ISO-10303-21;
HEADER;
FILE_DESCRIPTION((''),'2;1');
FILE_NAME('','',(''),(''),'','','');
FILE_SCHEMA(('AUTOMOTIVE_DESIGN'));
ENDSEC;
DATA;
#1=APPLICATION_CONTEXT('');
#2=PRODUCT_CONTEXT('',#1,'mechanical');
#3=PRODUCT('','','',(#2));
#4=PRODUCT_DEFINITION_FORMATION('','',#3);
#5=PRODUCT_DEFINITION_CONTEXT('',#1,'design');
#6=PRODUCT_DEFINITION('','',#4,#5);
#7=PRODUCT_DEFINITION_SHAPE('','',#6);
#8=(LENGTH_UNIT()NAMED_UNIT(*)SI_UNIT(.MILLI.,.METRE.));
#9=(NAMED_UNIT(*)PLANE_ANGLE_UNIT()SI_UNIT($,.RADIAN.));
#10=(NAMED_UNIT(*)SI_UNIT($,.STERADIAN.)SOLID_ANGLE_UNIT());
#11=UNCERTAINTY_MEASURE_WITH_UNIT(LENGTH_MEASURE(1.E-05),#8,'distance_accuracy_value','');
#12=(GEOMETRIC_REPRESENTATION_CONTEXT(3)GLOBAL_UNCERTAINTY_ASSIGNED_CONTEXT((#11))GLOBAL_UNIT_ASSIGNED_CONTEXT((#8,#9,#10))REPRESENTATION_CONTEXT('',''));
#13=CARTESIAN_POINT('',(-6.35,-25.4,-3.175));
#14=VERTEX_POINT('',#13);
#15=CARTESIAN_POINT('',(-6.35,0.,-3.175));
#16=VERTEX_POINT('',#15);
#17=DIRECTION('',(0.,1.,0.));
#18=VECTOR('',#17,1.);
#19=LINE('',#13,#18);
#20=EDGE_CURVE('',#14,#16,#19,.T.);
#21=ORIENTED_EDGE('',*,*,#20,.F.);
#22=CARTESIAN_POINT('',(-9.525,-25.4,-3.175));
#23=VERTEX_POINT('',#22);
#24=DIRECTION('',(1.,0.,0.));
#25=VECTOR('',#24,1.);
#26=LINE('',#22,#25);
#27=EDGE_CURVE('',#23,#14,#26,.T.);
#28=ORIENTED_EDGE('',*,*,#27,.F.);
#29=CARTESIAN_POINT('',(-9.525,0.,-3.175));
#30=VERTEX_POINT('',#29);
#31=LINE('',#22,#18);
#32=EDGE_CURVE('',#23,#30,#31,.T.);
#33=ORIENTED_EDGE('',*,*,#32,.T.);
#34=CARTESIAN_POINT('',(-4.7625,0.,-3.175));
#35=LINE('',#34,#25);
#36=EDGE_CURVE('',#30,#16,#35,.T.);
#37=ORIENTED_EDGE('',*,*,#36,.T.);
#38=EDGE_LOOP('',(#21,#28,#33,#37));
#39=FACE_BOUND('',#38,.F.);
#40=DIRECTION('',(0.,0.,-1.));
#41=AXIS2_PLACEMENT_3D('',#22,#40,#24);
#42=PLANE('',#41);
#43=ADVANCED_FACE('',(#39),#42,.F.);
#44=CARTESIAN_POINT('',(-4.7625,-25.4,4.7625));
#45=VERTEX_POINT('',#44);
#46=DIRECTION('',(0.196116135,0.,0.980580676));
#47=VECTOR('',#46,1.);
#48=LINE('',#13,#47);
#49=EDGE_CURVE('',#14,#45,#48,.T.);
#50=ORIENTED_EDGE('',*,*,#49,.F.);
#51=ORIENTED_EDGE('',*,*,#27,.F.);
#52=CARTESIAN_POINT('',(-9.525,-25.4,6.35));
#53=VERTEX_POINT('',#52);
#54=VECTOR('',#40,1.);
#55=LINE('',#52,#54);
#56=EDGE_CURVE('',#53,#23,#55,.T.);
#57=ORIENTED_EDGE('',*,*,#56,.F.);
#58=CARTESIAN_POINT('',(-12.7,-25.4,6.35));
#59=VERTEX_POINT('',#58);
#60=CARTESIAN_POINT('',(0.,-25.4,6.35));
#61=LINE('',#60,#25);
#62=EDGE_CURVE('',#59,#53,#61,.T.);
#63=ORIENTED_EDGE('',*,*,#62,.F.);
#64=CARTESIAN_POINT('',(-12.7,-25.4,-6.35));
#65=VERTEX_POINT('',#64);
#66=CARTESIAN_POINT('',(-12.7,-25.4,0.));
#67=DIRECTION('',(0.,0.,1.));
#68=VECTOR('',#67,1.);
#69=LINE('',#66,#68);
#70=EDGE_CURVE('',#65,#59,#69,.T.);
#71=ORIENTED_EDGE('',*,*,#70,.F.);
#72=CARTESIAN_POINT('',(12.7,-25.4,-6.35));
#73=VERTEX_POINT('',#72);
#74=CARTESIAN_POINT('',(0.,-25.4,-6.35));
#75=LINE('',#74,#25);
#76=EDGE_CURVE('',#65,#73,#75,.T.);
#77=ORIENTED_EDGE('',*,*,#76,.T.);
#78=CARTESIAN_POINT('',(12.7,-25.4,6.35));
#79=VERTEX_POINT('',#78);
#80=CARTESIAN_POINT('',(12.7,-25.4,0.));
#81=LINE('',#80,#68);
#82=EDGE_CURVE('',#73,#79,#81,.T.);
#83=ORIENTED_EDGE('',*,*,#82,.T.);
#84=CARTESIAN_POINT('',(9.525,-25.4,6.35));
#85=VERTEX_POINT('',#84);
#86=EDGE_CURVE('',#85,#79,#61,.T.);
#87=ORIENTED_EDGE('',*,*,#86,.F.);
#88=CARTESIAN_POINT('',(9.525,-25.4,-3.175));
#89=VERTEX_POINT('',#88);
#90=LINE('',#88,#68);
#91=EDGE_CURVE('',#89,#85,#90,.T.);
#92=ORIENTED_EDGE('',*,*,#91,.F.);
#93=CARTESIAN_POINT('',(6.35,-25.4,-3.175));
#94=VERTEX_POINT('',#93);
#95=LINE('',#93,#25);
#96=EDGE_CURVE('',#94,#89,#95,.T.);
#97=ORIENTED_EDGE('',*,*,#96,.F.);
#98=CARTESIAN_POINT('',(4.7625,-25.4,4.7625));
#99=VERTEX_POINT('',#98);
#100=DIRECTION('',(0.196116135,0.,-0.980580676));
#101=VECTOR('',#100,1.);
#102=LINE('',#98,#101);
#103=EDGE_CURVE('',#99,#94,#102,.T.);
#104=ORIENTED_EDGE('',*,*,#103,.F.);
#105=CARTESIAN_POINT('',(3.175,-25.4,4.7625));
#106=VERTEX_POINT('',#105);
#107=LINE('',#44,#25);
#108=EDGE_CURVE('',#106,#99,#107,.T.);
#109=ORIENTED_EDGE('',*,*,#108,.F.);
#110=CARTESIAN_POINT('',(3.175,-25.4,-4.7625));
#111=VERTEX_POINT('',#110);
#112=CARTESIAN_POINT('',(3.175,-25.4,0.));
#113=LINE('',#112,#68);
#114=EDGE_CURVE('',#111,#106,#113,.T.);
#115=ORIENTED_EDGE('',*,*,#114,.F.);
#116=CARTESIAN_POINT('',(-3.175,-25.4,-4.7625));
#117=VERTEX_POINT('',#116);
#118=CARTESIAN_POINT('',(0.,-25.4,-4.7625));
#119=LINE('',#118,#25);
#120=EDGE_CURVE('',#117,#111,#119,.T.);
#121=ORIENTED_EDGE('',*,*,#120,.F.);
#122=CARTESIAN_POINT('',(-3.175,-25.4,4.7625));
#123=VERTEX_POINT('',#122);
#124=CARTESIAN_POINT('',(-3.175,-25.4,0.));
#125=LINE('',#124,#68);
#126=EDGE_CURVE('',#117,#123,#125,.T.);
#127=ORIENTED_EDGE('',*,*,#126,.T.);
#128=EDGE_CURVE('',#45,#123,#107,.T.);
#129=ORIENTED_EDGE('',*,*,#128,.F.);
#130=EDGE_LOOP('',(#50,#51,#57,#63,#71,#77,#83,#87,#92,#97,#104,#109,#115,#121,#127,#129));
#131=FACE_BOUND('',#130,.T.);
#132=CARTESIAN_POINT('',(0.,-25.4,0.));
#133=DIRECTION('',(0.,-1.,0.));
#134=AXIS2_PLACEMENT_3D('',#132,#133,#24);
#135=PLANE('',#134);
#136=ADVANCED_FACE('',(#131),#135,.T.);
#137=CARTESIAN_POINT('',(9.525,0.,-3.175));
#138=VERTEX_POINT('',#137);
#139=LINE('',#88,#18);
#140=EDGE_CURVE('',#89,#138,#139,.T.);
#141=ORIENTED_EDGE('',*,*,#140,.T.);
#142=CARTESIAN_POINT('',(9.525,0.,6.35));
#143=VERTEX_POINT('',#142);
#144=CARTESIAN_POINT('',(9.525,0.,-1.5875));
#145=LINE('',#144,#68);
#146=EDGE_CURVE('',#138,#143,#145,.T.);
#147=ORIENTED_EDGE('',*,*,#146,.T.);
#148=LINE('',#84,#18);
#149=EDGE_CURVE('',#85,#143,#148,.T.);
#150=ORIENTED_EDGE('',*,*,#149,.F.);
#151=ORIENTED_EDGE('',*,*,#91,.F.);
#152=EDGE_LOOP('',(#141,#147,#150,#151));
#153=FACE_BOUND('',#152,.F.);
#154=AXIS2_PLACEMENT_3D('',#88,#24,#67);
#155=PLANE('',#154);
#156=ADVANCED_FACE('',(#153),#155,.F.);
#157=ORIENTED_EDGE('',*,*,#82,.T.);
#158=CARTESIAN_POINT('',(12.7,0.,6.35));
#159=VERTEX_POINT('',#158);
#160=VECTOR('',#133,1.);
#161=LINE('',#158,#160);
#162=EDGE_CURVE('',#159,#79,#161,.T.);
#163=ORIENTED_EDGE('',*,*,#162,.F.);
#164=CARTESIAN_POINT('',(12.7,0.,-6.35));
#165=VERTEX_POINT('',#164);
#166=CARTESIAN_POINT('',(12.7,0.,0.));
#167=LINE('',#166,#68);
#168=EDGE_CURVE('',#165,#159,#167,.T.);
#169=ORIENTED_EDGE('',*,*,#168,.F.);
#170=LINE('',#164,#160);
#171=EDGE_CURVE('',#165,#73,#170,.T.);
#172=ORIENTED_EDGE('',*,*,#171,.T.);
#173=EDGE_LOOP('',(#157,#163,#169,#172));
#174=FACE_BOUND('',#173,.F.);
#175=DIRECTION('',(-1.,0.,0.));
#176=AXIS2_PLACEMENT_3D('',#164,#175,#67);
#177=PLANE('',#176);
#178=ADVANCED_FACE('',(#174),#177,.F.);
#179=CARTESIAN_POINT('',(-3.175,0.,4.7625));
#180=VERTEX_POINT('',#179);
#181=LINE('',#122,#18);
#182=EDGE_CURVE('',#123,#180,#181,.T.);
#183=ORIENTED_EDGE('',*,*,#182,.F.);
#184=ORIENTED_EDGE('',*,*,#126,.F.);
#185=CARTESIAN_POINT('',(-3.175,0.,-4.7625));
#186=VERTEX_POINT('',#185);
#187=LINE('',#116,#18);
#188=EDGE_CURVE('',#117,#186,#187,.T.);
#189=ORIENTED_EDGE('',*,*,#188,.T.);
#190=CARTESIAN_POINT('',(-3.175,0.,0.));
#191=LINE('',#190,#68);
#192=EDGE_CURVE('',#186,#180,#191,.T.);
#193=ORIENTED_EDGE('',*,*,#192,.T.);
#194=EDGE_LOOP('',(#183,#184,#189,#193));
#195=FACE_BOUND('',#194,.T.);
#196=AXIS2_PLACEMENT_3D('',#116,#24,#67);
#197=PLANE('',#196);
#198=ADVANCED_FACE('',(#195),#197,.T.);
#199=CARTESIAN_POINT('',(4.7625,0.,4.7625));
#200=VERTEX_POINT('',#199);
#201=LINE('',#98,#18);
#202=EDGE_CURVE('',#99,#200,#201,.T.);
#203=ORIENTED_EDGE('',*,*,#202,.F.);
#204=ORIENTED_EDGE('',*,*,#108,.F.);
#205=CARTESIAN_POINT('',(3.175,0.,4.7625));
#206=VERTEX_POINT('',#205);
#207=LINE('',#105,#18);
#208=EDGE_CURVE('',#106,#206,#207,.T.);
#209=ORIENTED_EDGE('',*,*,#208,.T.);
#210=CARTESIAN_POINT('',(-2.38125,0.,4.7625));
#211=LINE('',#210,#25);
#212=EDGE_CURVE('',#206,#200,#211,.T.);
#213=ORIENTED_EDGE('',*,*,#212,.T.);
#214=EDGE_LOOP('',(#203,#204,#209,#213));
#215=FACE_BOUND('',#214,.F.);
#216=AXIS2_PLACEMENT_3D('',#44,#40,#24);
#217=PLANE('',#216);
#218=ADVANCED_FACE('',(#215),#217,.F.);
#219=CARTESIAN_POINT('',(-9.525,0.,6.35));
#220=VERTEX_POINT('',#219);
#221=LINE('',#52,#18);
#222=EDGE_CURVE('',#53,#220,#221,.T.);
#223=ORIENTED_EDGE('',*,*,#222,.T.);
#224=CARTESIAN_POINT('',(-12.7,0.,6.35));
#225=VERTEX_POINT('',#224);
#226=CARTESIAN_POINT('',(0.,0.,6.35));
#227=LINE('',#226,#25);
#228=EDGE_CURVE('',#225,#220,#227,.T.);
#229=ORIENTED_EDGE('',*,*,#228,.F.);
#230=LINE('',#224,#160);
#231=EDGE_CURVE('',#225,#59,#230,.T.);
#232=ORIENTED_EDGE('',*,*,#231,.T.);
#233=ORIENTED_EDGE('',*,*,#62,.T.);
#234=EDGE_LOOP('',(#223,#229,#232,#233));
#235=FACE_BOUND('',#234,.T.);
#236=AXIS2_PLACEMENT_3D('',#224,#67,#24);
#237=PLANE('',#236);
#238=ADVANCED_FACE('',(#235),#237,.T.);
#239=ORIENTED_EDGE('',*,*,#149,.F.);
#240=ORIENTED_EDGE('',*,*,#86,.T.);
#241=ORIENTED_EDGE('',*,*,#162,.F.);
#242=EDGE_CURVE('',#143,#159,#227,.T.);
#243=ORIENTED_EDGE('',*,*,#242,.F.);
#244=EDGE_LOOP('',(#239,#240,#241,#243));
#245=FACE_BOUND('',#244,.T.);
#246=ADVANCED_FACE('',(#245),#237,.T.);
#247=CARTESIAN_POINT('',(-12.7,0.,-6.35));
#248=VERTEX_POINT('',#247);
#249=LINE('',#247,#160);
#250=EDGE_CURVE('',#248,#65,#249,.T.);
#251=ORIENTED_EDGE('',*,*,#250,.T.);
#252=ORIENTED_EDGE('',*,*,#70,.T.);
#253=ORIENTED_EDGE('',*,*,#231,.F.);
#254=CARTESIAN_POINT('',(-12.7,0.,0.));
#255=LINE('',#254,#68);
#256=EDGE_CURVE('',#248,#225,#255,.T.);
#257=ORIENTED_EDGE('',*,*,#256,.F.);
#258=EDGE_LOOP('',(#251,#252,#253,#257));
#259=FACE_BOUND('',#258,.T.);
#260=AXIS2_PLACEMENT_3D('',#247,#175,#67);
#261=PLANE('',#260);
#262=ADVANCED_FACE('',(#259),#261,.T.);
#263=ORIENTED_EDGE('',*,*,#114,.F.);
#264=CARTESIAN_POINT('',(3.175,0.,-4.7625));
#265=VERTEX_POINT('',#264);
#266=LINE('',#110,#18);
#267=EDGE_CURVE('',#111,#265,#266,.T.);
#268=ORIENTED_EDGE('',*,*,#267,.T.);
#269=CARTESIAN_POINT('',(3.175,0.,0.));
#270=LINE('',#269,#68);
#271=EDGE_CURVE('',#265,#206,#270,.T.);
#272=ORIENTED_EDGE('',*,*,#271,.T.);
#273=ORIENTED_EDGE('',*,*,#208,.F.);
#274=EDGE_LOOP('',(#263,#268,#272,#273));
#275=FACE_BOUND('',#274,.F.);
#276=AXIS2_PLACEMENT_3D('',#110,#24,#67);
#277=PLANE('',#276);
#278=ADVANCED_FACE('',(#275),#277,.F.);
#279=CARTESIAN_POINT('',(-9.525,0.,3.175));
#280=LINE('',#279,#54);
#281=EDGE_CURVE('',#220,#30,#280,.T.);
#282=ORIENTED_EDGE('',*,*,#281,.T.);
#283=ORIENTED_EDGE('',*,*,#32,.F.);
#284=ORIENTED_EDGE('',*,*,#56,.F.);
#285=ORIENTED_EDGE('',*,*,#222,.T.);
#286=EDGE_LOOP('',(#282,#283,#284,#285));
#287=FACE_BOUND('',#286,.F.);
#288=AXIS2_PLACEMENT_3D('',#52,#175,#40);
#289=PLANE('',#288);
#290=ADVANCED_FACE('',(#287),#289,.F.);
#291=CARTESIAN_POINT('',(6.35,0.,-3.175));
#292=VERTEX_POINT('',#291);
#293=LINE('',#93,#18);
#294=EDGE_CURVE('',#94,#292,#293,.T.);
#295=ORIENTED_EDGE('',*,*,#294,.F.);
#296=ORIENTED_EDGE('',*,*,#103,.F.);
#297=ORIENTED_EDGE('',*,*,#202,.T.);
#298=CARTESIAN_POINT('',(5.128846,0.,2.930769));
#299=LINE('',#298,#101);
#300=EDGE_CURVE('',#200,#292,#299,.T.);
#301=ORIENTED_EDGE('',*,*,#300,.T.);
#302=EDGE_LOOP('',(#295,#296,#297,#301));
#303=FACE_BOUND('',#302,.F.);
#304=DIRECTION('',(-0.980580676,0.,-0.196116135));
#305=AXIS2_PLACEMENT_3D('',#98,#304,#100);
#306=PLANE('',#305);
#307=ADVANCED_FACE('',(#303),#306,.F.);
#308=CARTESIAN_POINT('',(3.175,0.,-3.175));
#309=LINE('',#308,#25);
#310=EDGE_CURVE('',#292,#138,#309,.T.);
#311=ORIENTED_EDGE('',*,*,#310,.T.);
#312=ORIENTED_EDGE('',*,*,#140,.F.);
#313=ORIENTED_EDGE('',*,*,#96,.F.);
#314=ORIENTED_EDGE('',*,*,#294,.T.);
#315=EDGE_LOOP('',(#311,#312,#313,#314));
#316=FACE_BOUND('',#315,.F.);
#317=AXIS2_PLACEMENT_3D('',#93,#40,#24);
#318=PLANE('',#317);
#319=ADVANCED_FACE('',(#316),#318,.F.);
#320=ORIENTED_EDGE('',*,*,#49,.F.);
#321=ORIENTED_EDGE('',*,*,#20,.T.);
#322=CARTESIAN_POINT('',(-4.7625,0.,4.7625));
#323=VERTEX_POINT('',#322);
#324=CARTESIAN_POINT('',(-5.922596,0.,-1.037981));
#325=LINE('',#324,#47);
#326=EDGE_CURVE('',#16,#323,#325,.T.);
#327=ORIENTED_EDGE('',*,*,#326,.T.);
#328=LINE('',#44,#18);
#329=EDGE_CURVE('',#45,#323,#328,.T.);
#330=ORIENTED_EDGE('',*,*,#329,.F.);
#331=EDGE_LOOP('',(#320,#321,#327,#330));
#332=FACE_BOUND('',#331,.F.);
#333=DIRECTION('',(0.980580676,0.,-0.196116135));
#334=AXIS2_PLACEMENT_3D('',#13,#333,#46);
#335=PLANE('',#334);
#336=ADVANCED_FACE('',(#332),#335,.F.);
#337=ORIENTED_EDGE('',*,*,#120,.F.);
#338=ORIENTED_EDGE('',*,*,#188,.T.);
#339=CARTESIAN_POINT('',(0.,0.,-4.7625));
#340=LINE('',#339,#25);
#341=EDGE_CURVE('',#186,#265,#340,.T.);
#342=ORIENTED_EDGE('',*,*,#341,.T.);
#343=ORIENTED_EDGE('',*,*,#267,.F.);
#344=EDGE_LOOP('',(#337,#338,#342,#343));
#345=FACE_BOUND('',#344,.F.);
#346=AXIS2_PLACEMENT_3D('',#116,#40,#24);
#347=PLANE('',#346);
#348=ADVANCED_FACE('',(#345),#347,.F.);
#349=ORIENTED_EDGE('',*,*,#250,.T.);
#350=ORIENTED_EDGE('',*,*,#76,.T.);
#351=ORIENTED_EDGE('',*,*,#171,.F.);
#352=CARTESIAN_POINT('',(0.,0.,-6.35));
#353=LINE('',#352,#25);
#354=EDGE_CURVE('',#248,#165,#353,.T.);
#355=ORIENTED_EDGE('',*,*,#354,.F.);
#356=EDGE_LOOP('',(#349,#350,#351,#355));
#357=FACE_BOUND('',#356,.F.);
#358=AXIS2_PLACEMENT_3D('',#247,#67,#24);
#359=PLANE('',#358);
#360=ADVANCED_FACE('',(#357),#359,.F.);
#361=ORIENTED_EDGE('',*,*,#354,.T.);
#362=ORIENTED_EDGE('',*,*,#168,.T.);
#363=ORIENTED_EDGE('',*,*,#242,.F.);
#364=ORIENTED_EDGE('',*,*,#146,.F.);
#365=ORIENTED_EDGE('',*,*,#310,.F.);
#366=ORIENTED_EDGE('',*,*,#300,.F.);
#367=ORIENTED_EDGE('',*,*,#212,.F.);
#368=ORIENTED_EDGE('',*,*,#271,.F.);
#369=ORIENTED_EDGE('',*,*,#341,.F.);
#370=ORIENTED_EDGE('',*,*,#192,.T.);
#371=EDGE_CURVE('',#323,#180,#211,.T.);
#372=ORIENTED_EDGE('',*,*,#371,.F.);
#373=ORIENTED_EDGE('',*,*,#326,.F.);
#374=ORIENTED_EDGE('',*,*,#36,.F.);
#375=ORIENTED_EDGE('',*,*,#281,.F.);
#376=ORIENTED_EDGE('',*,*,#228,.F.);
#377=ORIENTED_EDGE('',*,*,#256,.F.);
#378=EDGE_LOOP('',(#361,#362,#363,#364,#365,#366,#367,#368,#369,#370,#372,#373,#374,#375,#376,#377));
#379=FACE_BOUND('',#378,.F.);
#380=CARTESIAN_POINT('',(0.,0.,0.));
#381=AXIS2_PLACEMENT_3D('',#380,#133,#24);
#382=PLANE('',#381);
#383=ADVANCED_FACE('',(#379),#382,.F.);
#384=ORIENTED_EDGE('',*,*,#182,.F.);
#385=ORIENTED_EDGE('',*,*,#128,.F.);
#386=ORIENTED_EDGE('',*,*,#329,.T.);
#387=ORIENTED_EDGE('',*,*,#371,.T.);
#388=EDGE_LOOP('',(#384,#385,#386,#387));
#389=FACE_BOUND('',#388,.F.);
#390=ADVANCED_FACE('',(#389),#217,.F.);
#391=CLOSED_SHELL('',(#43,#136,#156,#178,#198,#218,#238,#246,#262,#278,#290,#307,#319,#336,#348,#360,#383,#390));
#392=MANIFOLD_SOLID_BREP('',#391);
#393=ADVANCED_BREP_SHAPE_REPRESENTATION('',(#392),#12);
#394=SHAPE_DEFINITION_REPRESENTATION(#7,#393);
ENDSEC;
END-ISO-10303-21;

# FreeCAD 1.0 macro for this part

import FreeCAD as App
import Part
import Sketcher

V = App.Vector
Q = App.Units.Quantity

doc = App.newDocument("Part")
body = doc.addObject("PartDesign::Body", "Body")

sketch1 = doc.addObject("Sketcher::SketchObject", "Sketch")
body.addObject(sketch1)
sketch1.AttachmentSupport = (doc.XZ_Plane, [""])
sketch1.MapMode = "FlatFace"
sketch1.addGeometry([
    Part.LineSegment(V(-12.7, 6.35, 0), V(-12.7, -6.35, 0)),
    Part.LineSegment(V(-12.7, -6.35, 0), V(12.7, -6.35, 0)),
    Part.LineSegment(V(12.7, -6.35, 0), V(12.7, 6.35, 0)),
    Part.LineSegment(V(12.7, 6.35, 0), V(-12.7, 6.35, 0)),
], False)
sketch1.addConstraint([
    Sketcher.Constraint("Coincident", 0, 2, 1, 1),
    Sketcher.Constraint("Coincident", 1, 2, 2, 1),
    Sketcher.Constraint("Coincident", 2, 2, 3, 1),
    Sketcher.Constraint("Coincident", 3, 2, 0, 1),
    Sketcher.Constraint("Vertical", 0),
    Sketcher.Constraint("Horizontal", 1),
    Sketcher.Constraint("Vertical", 2),
    Sketcher.Constraint("Horizontal", 3),
    Sketcher.Constraint("Symmetric", 0, 2, 2, 2, -1, 1),
    Sketcher.Constraint("DistanceX", 1, 1, 1, 2, Q("1 in")),
    Sketcher.Constraint("DistanceY", 0, 2, 0, 1, Q("0.5 in")),
])
pad1 = doc.addObject("PartDesign::Pad", "Pad")
body.addObject(pad1)
pad1.Profile = sketch1
pad1.Length = Q("1 in")

sketch2 = doc.addObject("Sketcher::SketchObject", "Sketch001")
body.addObject(sketch2)
sketch2.AttachmentSupport = (doc.XZ_Plane, [""])
sketch2.MapMode = "FlatFace"
sketch2.AttachmentOffset = App.Placement(V(0, 0, 1 * 25.4), App.Rotation())
sketch2.addGeometry([
    Part.LineSegment(V(-3.175, 4.7625, 0), V(-3.175, -4.7625, 0)),
    Part.LineSegment(V(-3.175, -4.7625, 0), V(3.175, -4.7625, 0)),
    Part.LineSegment(V(3.175, -4.7625, 0), V(3.175, 4.7625, 0)),
    Part.LineSegment(V(3.175, 4.7625, 0), V(-3.175, 4.7625, 0)),
], False)
sketch2.addConstraint([
    Sketcher.Constraint("Coincident", 0, 2, 1, 1),
    Sketcher.Constraint("Coincident", 1, 2, 2, 1),
    Sketcher.Constraint("Coincident", 2, 2, 3, 1),
    Sketcher.Constraint("Coincident", 3, 2, 0, 1),
    Sketcher.Constraint("Vertical", 0),
    Sketcher.Constraint("Horizontal", 1),
    Sketcher.Constraint("Vertical", 2),
    Sketcher.Constraint("Horizontal", 3),
    Sketcher.Constraint("Symmetric", 0, 2, 2, 2, -1, 1),
    Sketcher.Constraint("DistanceX", 1, 1, 1, 2, Q("0.25 in")),
    Sketcher.Constraint("DistanceY", 0, 2, 0, 1, Q("0.375 in")),
])
pocket1 = doc.addObject("PartDesign::Pocket", "Pocket")
body.addObject(pocket1)
pocket1.Profile = sketch2
pocket1.Length = Q("1 in")

sketch3 = doc.addObject("Sketcher::SketchObject", "Sketch002")
body.addObject(sketch3)
sketch3.AttachmentSupport = (doc.XZ_Plane, [""])
sketch3.MapMode = "FlatFace"
sketch3.AttachmentOffset = App.Placement(V(0, 0, 1 * 25.4), App.Rotation())
sketch3.addGeometry([
    Part.LineSegment(V(-4.7625, 4.7625, 0), V(4.7625, 4.7625, 0)),
    Part.LineSegment(V(4.7625, 4.7625, 0), V(6.35, -3.175, 0)),
    Part.LineSegment(V(6.35, -3.175, 0), V(9.525, -3.175, 0)),
    Part.LineSegment(V(9.525, -3.175, 0), V(9.525, 6.35, 0)),
    Part.LineSegment(V(9.525, 6.35, 0), V(-9.525, 6.35, 0)),
    Part.LineSegment(V(-9.525, 6.35, 0), V(-9.525, -3.175, 0)),
    Part.LineSegment(V(-9.525, -3.175, 0), V(-6.35, -3.175, 0)),
    Part.LineSegment(V(-6.35, -3.175, 0), V(-4.7625, 4.7625, 0)),
], False)
sketch3.addConstraint([
    Sketcher.Constraint("Coincident", 0, 2, 1, 1),
    Sketcher.Constraint("Coincident", 1, 2, 2, 1),
    Sketcher.Constraint("Coincident", 2, 2, 3, 1),
    Sketcher.Constraint("Coincident", 3, 2, 4, 1),
    Sketcher.Constraint("Coincident", 4, 2, 5, 1),
    Sketcher.Constraint("Coincident", 5, 2, 6, 1),
    Sketcher.Constraint("Coincident", 6, 2, 7, 1),
    Sketcher.Constraint("Coincident", 7, 2, 0, 1),
    Sketcher.Constraint("Horizontal", 0),
    Sketcher.Constraint("Horizontal", 2),
    Sketcher.Constraint("Vertical", 3),
    Sketcher.Constraint("Horizontal", 4),
    Sketcher.Constraint("Vertical", 5),
    Sketcher.Constraint("Horizontal", 6),
    Sketcher.Constraint("Symmetric", 2, 2, 5, 2, -2),
    Sketcher.Constraint("Equal", 2, 6),
    Sketcher.Constraint("Equal", 0, 3),
    Sketcher.Constraint("Equal", 1, 7),
    Sketcher.Constraint("DistanceX", 4, 2, 4, 1, Q("0.75 in")),
    Sketcher.Constraint("DistanceX", 6, 2, 1, 2, Q("0.5 in")),
    Sketcher.Constraint("DistanceX", 0, 1, 0, 2, Q("0.375 in")),
    Sketcher.Constraint("DistanceY", -1, 1, 3, 2, Q("0.25 in")),
    Sketcher.Constraint("DistanceY", -1, 1, 0, 2, Q("0.1875 in")),
])
pocket2 = doc.addObject("PartDesign::Pocket", "Pocket001")
body.addObject(pocket2)
pocket2.Profile = sketch3
pocket2.Type = "ThroughAll"

doc.recompute()
